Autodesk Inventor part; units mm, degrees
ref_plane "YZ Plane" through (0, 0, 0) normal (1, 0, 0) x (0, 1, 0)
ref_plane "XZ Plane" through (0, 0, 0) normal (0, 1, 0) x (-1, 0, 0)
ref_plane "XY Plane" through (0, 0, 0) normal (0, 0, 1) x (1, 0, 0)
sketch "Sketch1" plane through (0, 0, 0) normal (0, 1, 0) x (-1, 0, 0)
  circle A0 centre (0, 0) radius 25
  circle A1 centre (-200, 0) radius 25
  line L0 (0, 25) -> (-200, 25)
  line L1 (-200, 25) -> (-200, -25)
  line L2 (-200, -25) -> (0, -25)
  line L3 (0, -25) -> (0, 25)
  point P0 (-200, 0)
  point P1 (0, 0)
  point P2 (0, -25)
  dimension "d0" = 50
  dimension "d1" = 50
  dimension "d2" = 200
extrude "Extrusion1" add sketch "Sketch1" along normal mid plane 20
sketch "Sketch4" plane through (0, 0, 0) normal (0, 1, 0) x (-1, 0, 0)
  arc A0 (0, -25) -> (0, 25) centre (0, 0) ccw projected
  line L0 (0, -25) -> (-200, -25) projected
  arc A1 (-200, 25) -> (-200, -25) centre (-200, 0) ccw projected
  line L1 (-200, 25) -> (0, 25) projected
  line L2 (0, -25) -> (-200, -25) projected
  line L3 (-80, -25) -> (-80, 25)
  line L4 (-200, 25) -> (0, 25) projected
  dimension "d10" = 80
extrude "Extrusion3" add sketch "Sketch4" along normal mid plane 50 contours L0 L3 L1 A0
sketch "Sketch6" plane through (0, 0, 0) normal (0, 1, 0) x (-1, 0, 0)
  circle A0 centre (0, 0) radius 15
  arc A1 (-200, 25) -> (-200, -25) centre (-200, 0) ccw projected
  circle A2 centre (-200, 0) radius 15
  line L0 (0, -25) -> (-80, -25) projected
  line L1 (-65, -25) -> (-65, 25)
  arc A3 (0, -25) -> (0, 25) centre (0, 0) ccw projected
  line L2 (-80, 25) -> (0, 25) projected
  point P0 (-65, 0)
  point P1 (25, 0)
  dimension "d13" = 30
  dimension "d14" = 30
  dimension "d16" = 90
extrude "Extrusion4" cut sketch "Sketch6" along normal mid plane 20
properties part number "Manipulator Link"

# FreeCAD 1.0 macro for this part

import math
import FreeCAD as App
import Part
import Sketcher
from FreeCAD import Vector
Q = App.Units.Quantity

doc = App.newDocument("Part")
body = doc.addObject("PartDesign::Body", "Body")

sketch1 = body.newObject("Sketcher::SketchObject", "Sketch")
sketch1.AttachmentSupport = (doc.getObject("XZ_Plane"), [""])
sketch1.MapMode = "FlatFace"
sketch1.addGeometry([
    Part.ArcOfCircle(Part.Circle(Vector(0, 0, 0), Vector(0, 0, 1), 25), math.radians(90), math.radians(270)),
    Part.LineSegment(Vector(0, 25, 0), Vector(200, 25, 0)),
    Part.ArcOfCircle(Part.Circle(Vector(200, 0, 0), Vector(0, 0, 1), 25), math.radians(-90), math.radians(90)),
    Part.LineSegment(Vector(200, -25, 0), Vector(0, -25, 0)),
], False)
sketch1.addConstraint([
    Sketcher.Constraint("Tangent", 0, 1, 1, 1),
    Sketcher.Constraint("Tangent", 1, 2, 2, 2),
    Sketcher.Constraint("Tangent", 2, 1, 3, 1),
    Sketcher.Constraint("Tangent", 3, 2, 0, 2),
    Sketcher.Constraint("Horizontal", 1),
    Sketcher.Constraint("Horizontal", 3),
    Sketcher.Constraint("Coincident", 0, 3, -1, 1),
    Sketcher.Constraint("Radius", 0, Q("25 mm")),
    Sketcher.Constraint("DistanceX", 1, 1, 1, 2, Q("200 mm")),
])
pad1 = body.newObject("PartDesign::Pad", "Pad")
pad1.Profile = sketch1
pad1.Length = 20
pad1.Midplane = True

sketch2 = body.newObject("Sketcher::SketchObject", "Sketch001")
sketch2.AttachmentSupport = (doc.getObject("XZ_Plane"), [""])
sketch2.MapMode = "FlatFace"
sketch2.addGeometry([
    Part.LineSegment(Vector(80, -25, 0), Vector(0, -25, 0)),
    Part.ArcOfCircle(Part.Circle(Vector(0, 0, 0), Vector(0, 0, 1), 25), math.radians(90), math.radians(270)),
    Part.LineSegment(Vector(0, 25, 0), Vector(80, 25, 0)),
    Part.LineSegment(Vector(80, 25, 0), Vector(80, -25, 0)),
], False)
sketch2.addConstraint([
    Sketcher.Constraint("Tangent", 0, 2, 1, 2),
    Sketcher.Constraint("Tangent", 1, 1, 2, 1),
    Sketcher.Constraint("Coincident", 2, 2, 3, 1),
    Sketcher.Constraint("Coincident", 3, 2, 0, 1),
    Sketcher.Constraint("Horizontal", 0),
    Sketcher.Constraint("Horizontal", 2),
    Sketcher.Constraint("Vertical", 3),
    Sketcher.Constraint("Coincident", 1, 3, -1, 1),
    Sketcher.Constraint("DistanceX", 0, 2, 0, 1, Q("80 mm")),
    Sketcher.Constraint("Radius", 1, Q("25 mm")),
])
pad2 = body.newObject("PartDesign::Pad", "Pad001")
pad2.Profile = sketch2
pad2.Length = 50
pad2.Midplane = True

sketch3 = body.newObject("Sketcher::SketchObject", "Sketch002")
sketch3.AttachmentSupport = (doc.getObject("XZ_Plane"), [""])
sketch3.MapMode = "FlatFace"
sketch3.addGeometry([
    Part.Circle(Vector(200, 0, 0), Vector(0, 0, 1), 15),
    Part.LineSegment(Vector(65, -25, 0), Vector(0, -25, 0)),
    Part.ArcOfCircle(Part.Circle(Vector(0, 0, 0), Vector(0, 0, 1), 25), math.radians(90), math.radians(270)),
    Part.LineSegment(Vector(0, 25, 0), Vector(65, 25, 0)),
    Part.LineSegment(Vector(65, 25, 0), Vector(65, -25, 0)),
    Part.Circle(Vector(0, 0, 0), Vector(0, 0, 1), 15),
], False)
sketch3.addConstraint([
    Sketcher.Constraint("Tangent", 1, 2, 2, 2),
    Sketcher.Constraint("Tangent", 2, 1, 3, 1),
    Sketcher.Constraint("Coincident", 3, 2, 4, 1),
    Sketcher.Constraint("Coincident", 4, 2, 1, 1),
    Sketcher.Constraint("Horizontal", 1),
    Sketcher.Constraint("Horizontal", 3),
    Sketcher.Constraint("Vertical", 4),
    Sketcher.Constraint("Coincident", 2, 3, -1, 1),
    Sketcher.Constraint("Coincident", 5, 3, -1, 1),
    Sketcher.Constraint("Equal", 0, 5),
    Sketcher.Constraint("PointOnObject", 0, 3, -1),
    Sketcher.Constraint("Diameter", 0, Q("30 mm")),
    Sketcher.Constraint("Radius", 2, Q("25 mm")),
    Sketcher.Constraint("DistanceX", 1, 2, 1, 1, Q("65 mm")),
    Sketcher.Constraint("DistanceX", -1, 1, 0, 3, Q("200 mm")),
])
pocket1 = body.newObject("PartDesign::Pocket", "Pocket")
pocket1.Profile = sketch3
pocket1.Length = 20
pocket1.Midplane = True

doc.recompute()
